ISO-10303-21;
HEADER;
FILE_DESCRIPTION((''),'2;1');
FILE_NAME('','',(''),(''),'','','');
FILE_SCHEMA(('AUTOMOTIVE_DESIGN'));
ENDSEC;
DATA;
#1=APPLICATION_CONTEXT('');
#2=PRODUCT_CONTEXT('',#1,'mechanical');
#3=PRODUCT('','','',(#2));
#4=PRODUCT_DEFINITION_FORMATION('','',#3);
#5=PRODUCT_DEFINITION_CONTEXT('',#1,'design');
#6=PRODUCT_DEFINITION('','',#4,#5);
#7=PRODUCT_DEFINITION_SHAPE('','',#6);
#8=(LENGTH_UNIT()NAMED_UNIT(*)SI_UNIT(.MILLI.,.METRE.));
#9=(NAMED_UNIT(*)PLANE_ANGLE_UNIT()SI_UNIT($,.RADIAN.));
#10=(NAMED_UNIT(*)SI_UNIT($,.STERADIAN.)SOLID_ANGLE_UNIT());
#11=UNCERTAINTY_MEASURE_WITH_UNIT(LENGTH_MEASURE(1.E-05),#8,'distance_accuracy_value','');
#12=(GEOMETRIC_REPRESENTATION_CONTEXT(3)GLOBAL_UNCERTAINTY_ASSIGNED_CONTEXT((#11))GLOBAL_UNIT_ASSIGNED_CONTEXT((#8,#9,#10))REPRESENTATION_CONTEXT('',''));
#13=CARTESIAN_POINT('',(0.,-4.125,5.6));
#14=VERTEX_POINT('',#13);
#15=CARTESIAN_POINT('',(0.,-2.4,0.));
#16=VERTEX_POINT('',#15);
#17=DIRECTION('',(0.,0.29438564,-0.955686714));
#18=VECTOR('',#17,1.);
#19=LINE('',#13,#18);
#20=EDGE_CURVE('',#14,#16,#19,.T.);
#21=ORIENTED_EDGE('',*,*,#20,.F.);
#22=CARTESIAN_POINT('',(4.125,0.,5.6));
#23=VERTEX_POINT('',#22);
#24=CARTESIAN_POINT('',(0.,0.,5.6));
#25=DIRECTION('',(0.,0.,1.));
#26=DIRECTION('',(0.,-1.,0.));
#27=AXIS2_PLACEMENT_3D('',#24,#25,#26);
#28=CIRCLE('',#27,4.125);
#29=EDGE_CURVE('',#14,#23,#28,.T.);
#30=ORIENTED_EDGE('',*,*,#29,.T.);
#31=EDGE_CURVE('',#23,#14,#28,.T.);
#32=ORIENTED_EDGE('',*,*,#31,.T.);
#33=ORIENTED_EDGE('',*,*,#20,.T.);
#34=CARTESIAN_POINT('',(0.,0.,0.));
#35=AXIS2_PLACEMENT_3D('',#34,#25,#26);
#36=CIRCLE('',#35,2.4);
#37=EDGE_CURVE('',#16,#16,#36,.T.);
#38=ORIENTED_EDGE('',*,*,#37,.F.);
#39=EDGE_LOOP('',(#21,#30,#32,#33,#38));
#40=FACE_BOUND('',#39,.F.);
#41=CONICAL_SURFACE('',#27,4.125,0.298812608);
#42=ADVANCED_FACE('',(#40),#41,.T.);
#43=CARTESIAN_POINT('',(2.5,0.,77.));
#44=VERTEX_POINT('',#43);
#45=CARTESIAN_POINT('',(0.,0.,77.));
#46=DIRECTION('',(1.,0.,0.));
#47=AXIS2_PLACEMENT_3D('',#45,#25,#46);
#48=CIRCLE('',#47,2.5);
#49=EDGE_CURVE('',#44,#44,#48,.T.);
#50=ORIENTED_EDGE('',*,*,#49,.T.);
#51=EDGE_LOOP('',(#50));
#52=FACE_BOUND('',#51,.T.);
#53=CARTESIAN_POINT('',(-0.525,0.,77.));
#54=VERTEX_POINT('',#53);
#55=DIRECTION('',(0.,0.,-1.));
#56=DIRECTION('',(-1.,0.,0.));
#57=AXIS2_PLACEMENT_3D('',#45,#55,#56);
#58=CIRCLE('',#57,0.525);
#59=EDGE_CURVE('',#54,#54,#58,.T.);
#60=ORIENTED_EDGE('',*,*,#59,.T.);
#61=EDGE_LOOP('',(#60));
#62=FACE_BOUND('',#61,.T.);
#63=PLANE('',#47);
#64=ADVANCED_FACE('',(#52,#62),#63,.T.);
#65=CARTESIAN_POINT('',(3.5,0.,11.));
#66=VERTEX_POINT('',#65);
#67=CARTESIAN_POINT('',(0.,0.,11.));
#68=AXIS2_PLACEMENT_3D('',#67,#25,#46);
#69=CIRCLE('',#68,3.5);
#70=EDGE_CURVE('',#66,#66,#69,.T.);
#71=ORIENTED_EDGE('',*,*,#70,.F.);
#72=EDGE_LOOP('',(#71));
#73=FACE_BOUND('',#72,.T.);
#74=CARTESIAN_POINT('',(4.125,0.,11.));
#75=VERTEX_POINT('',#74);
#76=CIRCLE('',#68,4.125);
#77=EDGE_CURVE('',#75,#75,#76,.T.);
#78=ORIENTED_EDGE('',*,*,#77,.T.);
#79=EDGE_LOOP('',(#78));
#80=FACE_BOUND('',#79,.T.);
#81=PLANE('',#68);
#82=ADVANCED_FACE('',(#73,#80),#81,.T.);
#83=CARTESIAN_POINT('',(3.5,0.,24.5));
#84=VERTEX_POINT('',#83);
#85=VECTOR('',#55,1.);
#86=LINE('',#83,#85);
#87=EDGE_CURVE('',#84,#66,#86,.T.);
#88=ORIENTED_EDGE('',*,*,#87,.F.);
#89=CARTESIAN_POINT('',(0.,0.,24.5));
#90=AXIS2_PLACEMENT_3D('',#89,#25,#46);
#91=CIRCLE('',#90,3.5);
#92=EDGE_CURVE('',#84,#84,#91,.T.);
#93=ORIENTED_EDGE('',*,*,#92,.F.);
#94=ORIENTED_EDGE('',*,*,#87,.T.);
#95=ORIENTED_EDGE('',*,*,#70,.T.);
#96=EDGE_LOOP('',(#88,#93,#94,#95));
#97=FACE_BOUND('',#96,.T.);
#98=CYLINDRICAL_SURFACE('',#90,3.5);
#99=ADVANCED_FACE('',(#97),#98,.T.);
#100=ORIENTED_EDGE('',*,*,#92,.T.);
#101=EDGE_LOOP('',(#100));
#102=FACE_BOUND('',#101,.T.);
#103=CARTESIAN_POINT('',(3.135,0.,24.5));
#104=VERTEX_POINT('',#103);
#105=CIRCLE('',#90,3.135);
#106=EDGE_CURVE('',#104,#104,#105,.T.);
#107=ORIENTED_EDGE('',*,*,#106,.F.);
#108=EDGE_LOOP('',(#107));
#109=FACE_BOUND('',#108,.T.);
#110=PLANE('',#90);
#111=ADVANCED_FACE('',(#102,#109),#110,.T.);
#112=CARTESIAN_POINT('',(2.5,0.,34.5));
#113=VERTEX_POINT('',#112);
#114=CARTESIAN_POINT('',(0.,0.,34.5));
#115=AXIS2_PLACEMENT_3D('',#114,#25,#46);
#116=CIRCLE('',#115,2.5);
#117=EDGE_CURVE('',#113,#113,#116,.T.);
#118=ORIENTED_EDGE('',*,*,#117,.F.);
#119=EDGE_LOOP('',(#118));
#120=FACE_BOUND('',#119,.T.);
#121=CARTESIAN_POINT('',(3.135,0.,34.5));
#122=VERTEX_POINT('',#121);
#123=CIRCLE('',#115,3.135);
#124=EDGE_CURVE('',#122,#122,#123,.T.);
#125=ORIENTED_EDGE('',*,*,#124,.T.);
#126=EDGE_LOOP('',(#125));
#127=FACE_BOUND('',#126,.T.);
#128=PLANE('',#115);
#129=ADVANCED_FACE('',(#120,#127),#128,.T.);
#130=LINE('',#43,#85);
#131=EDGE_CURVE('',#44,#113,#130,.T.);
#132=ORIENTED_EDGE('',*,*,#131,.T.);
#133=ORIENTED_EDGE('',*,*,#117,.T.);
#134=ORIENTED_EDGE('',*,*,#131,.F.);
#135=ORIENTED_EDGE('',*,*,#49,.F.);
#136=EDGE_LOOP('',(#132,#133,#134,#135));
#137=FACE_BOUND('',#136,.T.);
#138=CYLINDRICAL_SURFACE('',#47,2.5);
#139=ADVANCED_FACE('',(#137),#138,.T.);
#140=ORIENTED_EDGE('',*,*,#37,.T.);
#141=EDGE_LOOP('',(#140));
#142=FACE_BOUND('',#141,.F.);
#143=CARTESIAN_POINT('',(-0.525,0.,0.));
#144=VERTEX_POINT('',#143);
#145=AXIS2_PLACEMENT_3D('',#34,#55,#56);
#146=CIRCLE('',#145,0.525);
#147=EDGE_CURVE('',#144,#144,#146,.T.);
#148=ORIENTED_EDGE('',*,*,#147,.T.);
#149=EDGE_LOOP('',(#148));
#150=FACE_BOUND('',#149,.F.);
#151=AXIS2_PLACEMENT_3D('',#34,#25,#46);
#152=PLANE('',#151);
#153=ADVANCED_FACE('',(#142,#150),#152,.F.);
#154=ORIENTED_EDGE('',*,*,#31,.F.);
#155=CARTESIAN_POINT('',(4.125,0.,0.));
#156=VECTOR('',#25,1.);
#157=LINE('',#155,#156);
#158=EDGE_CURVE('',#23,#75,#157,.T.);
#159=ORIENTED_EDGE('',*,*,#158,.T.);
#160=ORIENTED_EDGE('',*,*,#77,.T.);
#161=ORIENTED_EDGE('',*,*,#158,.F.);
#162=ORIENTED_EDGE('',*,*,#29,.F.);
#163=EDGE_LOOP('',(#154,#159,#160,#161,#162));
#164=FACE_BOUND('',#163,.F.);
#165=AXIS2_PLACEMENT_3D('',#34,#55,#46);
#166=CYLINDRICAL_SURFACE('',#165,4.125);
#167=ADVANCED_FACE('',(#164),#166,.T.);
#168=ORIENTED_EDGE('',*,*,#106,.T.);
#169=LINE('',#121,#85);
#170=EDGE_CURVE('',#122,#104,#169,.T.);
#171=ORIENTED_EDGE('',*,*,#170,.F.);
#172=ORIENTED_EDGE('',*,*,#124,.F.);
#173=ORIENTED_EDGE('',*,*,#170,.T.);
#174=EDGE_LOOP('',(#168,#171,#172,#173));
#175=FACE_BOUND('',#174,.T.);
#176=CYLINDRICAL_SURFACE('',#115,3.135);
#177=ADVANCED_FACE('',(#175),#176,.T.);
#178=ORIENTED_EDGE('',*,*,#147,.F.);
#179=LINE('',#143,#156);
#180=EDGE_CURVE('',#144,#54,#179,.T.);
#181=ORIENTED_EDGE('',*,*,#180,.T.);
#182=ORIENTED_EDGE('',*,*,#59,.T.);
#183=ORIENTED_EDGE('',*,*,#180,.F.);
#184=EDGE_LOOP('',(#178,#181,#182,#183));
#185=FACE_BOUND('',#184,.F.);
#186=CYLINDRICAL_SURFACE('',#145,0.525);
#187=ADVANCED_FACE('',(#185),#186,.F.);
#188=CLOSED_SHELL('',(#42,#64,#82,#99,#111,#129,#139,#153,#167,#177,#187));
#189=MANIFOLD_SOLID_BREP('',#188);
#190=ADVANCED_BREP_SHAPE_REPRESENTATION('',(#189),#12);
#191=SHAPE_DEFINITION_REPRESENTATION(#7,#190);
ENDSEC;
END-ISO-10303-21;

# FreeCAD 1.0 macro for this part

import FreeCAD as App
import Part
import Sketcher

V = App.Vector
Q = App.Units.Quantity

doc = App.newDocument("Part")
params = doc.addObject("Spreadsheet::Sheet", "Params")
for row, (alias, value) in enumerate([
    ("sketch1_diameter", "8.25 mm"),
    ("pad1_length", "77 mm"),
    ("sketch2_height", "5.6 mm"),
    ("groove_angle", "360 deg"),
    ("sketch3_diameter", "5 mm"),
    ("sketch3_diameter2", "8.25 mm"),
    ("pocket1_length", "42.5 mm"),
    ("sketch4_diameter", "6.27 mm"),
    ("sketch4_diameter2", "8.25 mm"),
    ("pocket2_length", "10 mm"),
    ("sketch5_diameter", "7 mm"),
    ("sketch5_diameter2", "8.25 mm"),
    ("pocket3_length", "13.5 mm"),
    ("sketch6_diameter", "1.05 mm"),
], start=1):
    params.set(f"A{row}", alias)
    params.set(f"B{row}", "=" + value)
    params.setAlias(f"B{row}", alias)

body = doc.addObject("PartDesign::Body", "Body")

sketch1 = doc.addObject("Sketcher::SketchObject", "Sketch")
body.addObject(sketch1)
sketch1.AttachmentSupport = (doc.XY_Plane, [""])
sketch1.MapMode = "FlatFace"
sketch1.addGeometry(Part.Circle(V(0, 0, 0), V(0, 0, 1), 4.125), False)
sketch1.addConstraint([
    Sketcher.Constraint("Coincident", 0, 3, -1, 1),
    Sketcher.Constraint("Diameter", 0, 8.25),
])
sketch1.setExpression("Constraints[1]", "Params.sketch1_diameter")
pad1 = doc.addObject("PartDesign::Pad", "Pad")
body.addObject(pad1)
pad1.Profile = sketch1
pad1.setExpression("Length", "Params.pad1_length")

sketch2 = doc.addObject("Sketcher::SketchObject", "Sketch001")
body.addObject(sketch2)
sketch2.AttachmentSupport = (doc.YZ_Plane, [""])
sketch2.MapMode = "FlatFace"
sketch2.addGeometry([
    Part.LineSegment(V(-4.125, 5.6, 0), V(-4.125, 0, 0)),
    Part.LineSegment(V(-4.125, 0, 0), V(-2.4, 0, 0)),
    Part.LineSegment(V(-2.4, 0, 0), V(-4.125, 5.6, 0)),
], False)
sketch2.addConstraint([
    Sketcher.Constraint("Coincident", 0, 2, 1, 1),
    Sketcher.Constraint("Coincident", 1, 2, 2, 1),
    Sketcher.Constraint("Coincident", 2, 2, 0, 1),
    Sketcher.Constraint("Vertical", 0),
    Sketcher.Constraint("Horizontal", 1),
    Sketcher.Constraint("PointOnObject", 0, 2, -1),
    Sketcher.Constraint("DistanceY", 0, 2, 0, 1, 5.6),
    Sketcher.Constraint("DistanceX", 1, 2, -1, 1, 2.4),
    Sketcher.Constraint("Angle", 2, Q("107.1207 deg")),
])
sketch2.setExpression("Constraints[6]", "Params.sketch2_height")
groove = doc.addObject("PartDesign::Groove", "Groove")
body.addObject(groove)
groove.Profile = sketch2
groove.ReferenceAxis = (sketch2, ["V_Axis"])
groove.setExpression("Angle", "Params.groove_angle")

sketch3 = doc.addObject("Sketcher::SketchObject", "Sketch002")
body.addObject(sketch3)
sketch3.AttachmentSupport = (doc.XY_Plane, [""])
sketch3.MapMode = "FlatFace"
sketch3.AttachmentOffset = App.Placement(V(0, 0, 77), App.Rotation())
sketch3.addGeometry([
    Part.Circle(V(0, 0, 0), V(0, 0, 1), 4.125),
    Part.Circle(V(0, 0, 0), V(0, 0, 1), 2.5),
], False)
sketch3.addConstraint([
    Sketcher.Constraint("Coincident", 0, 3, -1, 1),
    Sketcher.Constraint("Coincident", 1, 3, -1, 1),
    Sketcher.Constraint("Diameter", 1, 5.0),
    Sketcher.Constraint("Diameter", 0, 8.25),
])
sketch3.setExpression("Constraints[2]", "Params.sketch3_diameter")
sketch3.setExpression("Constraints[3]", "Params.sketch3_diameter2")
pocket1 = doc.addObject("PartDesign::Pocket", "Pocket")
body.addObject(pocket1)
pocket1.Profile = sketch3
pocket1.setExpression("Length", "Params.pocket1_length")

sketch4 = doc.addObject("Sketcher::SketchObject", "Sketch003")
body.addObject(sketch4)
sketch4.AttachmentSupport = (doc.XY_Plane, [""])
sketch4.MapMode = "FlatFace"
sketch4.AttachmentOffset = App.Placement(V(0, 0, 34.5), App.Rotation())
sketch4.addGeometry([
    Part.Circle(V(0, 0, 0), V(0, 0, 1), 4.125),
    Part.Circle(V(0, 0, 0), V(0, 0, 1), 3.135),
], False)
sketch4.addConstraint([
    Sketcher.Constraint("Coincident", 0, 3, -1, 1),
    Sketcher.Constraint("Coincident", 1, 3, -1, 1),
    Sketcher.Constraint("Diameter", 1, 6.27),
    Sketcher.Constraint("Diameter", 0, 8.25),
])
sketch4.setExpression("Constraints[2]", "Params.sketch4_diameter")
sketch4.setExpression("Constraints[3]", "Params.sketch4_diameter2")
pocket2 = doc.addObject("PartDesign::Pocket", "Pocket001")
body.addObject(pocket2)
pocket2.Profile = sketch4
pocket2.setExpression("Length", "Params.pocket2_length")

sketch5 = doc.addObject("Sketcher::SketchObject", "Sketch004")
body.addObject(sketch5)
sketch5.AttachmentSupport = (doc.XY_Plane, [""])
sketch5.MapMode = "FlatFace"
sketch5.AttachmentOffset = App.Placement(V(0, 0, 24.5), App.Rotation())
sketch5.addGeometry([
    Part.Circle(V(0, 0, 0), V(0, 0, 1), 4.125),
    Part.Circle(V(0, 0, 0), V(0, 0, 1), 3.5),
], False)
sketch5.addConstraint([
    Sketcher.Constraint("Coincident", 0, 3, -1, 1),
    Sketcher.Constraint("Coincident", 1, 3, -1, 1),
    Sketcher.Constraint("Diameter", 1, 7.0),
    Sketcher.Constraint("Diameter", 0, 8.25),
])
sketch5.setExpression("Constraints[2]", "Params.sketch5_diameter")
sketch5.setExpression("Constraints[3]", "Params.sketch5_diameter2")
pocket3 = doc.addObject("PartDesign::Pocket", "Pocket002")
body.addObject(pocket3)
pocket3.Profile = sketch5
pocket3.setExpression("Length", "Params.pocket3_length")

sketch6 = doc.addObject("Sketcher::SketchObject", "Sketch005")
body.addObject(sketch6)
sketch6.AttachmentSupport = (doc.XY_Plane, [""])
sketch6.MapMode = "FlatFace"
sketch6.addGeometry(Part.Circle(V(0, 0, 0), V(0, 0, 1), 0.525), False)
sketch6.addConstraint([
    Sketcher.Constraint("Coincident", 0, 3, -1, 1),
    Sketcher.Constraint("Diameter", 0, 1.05),
])
sketch6.setExpression("Constraints[1]", "Params.sketch6_diameter")
pocket4 = doc.addObject("PartDesign::Pocket", "Pocket003")
body.addObject(pocket4)
pocket4.Profile = sketch6
pocket4.Type = "ThroughAll"
pocket4.Reversed = True

doc.recompute()
